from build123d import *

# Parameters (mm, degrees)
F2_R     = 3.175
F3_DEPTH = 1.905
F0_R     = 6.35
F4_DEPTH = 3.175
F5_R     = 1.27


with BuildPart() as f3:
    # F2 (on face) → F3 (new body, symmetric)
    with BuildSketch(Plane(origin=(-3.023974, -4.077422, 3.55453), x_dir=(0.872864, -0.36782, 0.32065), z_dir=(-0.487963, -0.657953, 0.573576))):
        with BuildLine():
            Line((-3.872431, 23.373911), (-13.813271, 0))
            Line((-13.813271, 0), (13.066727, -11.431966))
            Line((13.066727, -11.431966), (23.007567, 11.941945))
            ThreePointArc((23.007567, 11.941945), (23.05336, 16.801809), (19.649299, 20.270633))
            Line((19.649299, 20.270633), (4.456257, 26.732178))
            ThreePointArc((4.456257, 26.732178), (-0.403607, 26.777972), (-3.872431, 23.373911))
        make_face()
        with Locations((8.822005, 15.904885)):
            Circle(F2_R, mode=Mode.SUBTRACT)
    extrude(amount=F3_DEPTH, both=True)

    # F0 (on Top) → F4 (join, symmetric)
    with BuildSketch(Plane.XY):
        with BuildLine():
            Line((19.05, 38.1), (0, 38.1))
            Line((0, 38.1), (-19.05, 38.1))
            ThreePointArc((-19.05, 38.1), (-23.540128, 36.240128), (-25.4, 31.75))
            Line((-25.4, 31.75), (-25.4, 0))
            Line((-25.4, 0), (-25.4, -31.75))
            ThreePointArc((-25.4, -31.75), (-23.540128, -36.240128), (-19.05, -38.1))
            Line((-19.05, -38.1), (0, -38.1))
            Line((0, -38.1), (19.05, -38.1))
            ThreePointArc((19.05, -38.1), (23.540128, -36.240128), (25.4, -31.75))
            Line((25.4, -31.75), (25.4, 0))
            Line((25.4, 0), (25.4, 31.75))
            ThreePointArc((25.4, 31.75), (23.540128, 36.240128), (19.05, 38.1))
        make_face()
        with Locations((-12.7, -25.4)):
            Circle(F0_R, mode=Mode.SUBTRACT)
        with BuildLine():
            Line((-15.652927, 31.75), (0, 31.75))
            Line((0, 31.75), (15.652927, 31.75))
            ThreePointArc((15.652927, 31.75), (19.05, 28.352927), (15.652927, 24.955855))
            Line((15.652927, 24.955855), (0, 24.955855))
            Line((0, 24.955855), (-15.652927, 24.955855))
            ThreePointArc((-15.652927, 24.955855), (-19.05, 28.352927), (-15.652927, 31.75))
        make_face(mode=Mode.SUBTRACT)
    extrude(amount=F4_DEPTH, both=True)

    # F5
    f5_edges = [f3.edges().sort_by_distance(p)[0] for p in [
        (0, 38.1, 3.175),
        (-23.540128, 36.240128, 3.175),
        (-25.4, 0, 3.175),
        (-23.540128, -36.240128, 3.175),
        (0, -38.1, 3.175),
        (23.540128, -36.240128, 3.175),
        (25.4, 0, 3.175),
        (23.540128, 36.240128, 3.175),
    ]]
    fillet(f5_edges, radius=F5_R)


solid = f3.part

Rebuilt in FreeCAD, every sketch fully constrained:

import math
import FreeCAD as App
import Part
import Sketcher

V = App.Vector
Q = App.Units.Quantity


def edges_at(feature, points):
    """Names of the edges that pass closest to the given points."""
    edges = feature.Shape.Edges
    near = lambda p: min(range(len(edges)), key=lambda i: edges[i].distToShape(Part.Vertex(*p))[0])
    return sorted({f"Edge{near(p) + 1}" for p in points})

doc = App.newDocument("Part")
body = doc.addObject("PartDesign::Body", "Body")

sketch1 = body.newObject("Sketcher::SketchObject", "Sketch")
sketch1.Placement = App.Placement(V(-3.023974, -4.077422, 3.55453), App.Rotation(V(0.872864241, -0.367820032, 0.320650028), V(0.000000095, 0.657119505, 0.753786413), V(-0.48796313, -0.657953175, 0.573576153), "ZXY"))
sketch1.addGeometry([
    Part.LineSegment(V(-3.872431, 23.373911, 0), V(-13.813271, 0, 0)),
    Part.LineSegment(V(-13.813271, 0, 0), V(13.066727, -11.431966, 0)),
    Part.LineSegment(V(13.066727, -11.431966, 0), V(23.007567, 11.941945, 0)),
    Part.ArcOfCircle(Part.Circle(V(17.164087, 14.427154, 0), V(0, 0, 1), 6.350002), math.radians(-23.039857), math.radians(66.96011)),
    Part.LineSegment(V(19.649299, 20.270633, 0), V(4.456257, 26.732178, 0)),
    Part.ArcOfCircle(Part.Circle(V(1.971047, 20.8887, 0), V(0, 0, 1), 6.350001), math.radians(66.960125), math.radians(156.960116)),
    Part.Circle(V(8.822005, 15.904885, 0), V(0, 0, 1), 3.175),
], False)
sketch1.addConstraint([
    Sketcher.Constraint("Coincident", 0, 2, 1, 1),
    Sketcher.Constraint("Coincident", 1, 2, 2, 1),
    Sketcher.Constraint("Tangent", 2, 2, 3, 1),
    Sketcher.Constraint("Tangent", 3, 2, 4, 1),
    Sketcher.Constraint("Tangent", 4, 2, 5, 1),
    Sketcher.Constraint("Tangent", 5, 2, 0, 1),
    Sketcher.Constraint("Equal", 3, 5),
    Sketcher.Constraint("PointOnObject", 0, 2, -1),
    Sketcher.Constraint("Perpendicular", 0, 1),
    Sketcher.Constraint("Perpendicular", 1, 2),
    Sketcher.Constraint("Perpendicular", 2, 4),
    Sketcher.Constraint("Diameter", 6, Q("0.25 in")),
    Sketcher.Constraint("Radius", 3, Q("0.2500001 in")),
    Sketcher.Constraint("Distance", 0, Q("1 in")),
    Sketcher.Constraint("Distance", 1, Q("1.15 in")),
    Sketcher.Constraint("DistanceY", -1, 1, 5, 3, 20.8887),
    Sketcher.Constraint("DistanceX", -1, 1, 3, 2, 19.649299),
    Sketcher.Constraint("DistanceX", 6, 3, 3, 3, 8.342082),
    Sketcher.Constraint("DistanceY", 3, 3, 6, 3, 1.477731),
])
pad1 = body.newObject("PartDesign::Pad", "Pad")
pad1.Profile = sketch1
pad1.Length = Q("0.15 in")
pad1.Midplane = True

sketch2 = body.newObject("Sketcher::SketchObject", "Sketch001")
sketch2.AttachmentSupport = (doc.getObject("XY_Plane"), [""])
sketch2.MapMode = "FlatFace"
sketch2.addGeometry([
    Part.LineSegment(V(19.05, 38.1, 0), V(-19.05, 38.1, 0)),
    Part.ArcOfCircle(Part.Circle(V(-19.05, 31.75, 0), V(0, 0, 1), 6.35), math.radians(90.000002), math.radians(179.999998)),
    Part.LineSegment(V(-25.4, 31.75, 0), V(-25.4, -31.75, 0)),
    Part.ArcOfCircle(Part.Circle(V(-19.05, -31.75, 0), V(0, 0, 1), 6.35), math.radians(-179.999998), math.radians(-90.000002)),
    Part.LineSegment(V(-19.05, -38.1, 0), V(19.05, -38.1, 0)),
    Part.ArcOfCircle(Part.Circle(V(19.05, -31.75, 0), V(0, 0, 1), 6.35), math.radians(-89.999998), math.radians(-0.000002)),
    Part.LineSegment(V(25.4, -31.75, 0), V(25.4, 31.75, 0)),
    Part.ArcOfCircle(Part.Circle(V(19.05, 31.75, 0), V(0, 0, 1), 6.35), math.radians(0.000002), math.radians(89.999998)),
    Part.Circle(V(-12.7, -25.4, 0), V(0, 0, 1), 6.35),
    Part.ArcOfCircle(Part.Circle(V(-15.652928, 28.352927, 0), V(0, 0, 1), 3.397073), math.radians(89.999992), math.radians(270.000008)),
    Part.LineSegment(V(-15.652927, 31.75, 0), V(15.652927, 31.75, 0)),
    Part.ArcOfCircle(Part.Circle(V(15.652928, 28.352927, 0), V(0, 0, 1), 3.397073), math.radians(-90.000008), math.radians(90.000008)),
    Part.LineSegment(V(15.652927, 24.955855, 0), V(-15.652927, 24.955855, 0)),
], False)
sketch2.addConstraint([
    Sketcher.Constraint("Tangent", 0, 2, 1, 1),
    Sketcher.Constraint("Tangent", 1, 2, 2, 1),
    Sketcher.Constraint("Tangent", 2, 2, 3, 1),
    Sketcher.Constraint("Tangent", 3, 2, 4, 1),
    Sketcher.Constraint("Tangent", 4, 2, 5, 1),
    Sketcher.Constraint("Tangent", 5, 2, 6, 1),
    Sketcher.Constraint("Tangent", 6, 2, 7, 1),
    Sketcher.Constraint("Tangent", 7, 2, 0, 1),
    Sketcher.Constraint("Tangent", 9, 1, 10, 1),
    Sketcher.Constraint("Tangent", 10, 2, 11, 2),
    Sketcher.Constraint("Tangent", 11, 1, 12, 1),
    Sketcher.Constraint("Tangent", 12, 2, 9, 2),
    Sketcher.Constraint("Horizontal", 0),
    Sketcher.Constraint("Vertical", 2),
    Sketcher.Constraint("Horizontal", 4),
    Sketcher.Constraint("Vertical", 6),
    Sketcher.Constraint("Horizontal", 10),
    Sketcher.Constraint("Horizontal", 12),
    Sketcher.Constraint("Equal", 1, 3),
    Sketcher.Constraint("Equal", 3, 5),
    Sketcher.Constraint("Equal", 5, 7),
    Sketcher.Constraint("Equal", 7, 8),
    Sketcher.Constraint("Symmetric", 1, 3, 5, 3, -1, 1),
    Sketcher.Constraint("Horizontal", 6, 2, 9, 1),
    Sketcher.Constraint("Diameter", 8, Q("0.5 in")),
    Sketcher.Constraint("DistanceX", 0, 2, 0, 1, Q("1.5 in")),
    Sketcher.Constraint("DistanceY", 2, 2, 2, 1, Q("2.5 in")),
    Sketcher.Constraint("DistanceY", 8, 3, -1, 1, Q("1 in")),
    Sketcher.Constraint("DistanceX", 8, 3, -1, 1, Q("0.5 in")),
    Sketcher.Constraint("Radius", 9, 3.397073),
    Sketcher.Constraint("DistanceX", 10, 1, 10, 2, 31.305854),
    Sketcher.Constraint("DistanceX", 9, 3, -1, 1, 15.652928),
])
pad2 = body.newObject("PartDesign::Pad", "Pad001")
pad2.Profile = sketch2
pad2.Length = Q("0.25 in")
pad2.Midplane = True
doc.recompute()

fillet = body.newObject("PartDesign::Fillet", "Fillet")
fillet.Base = (pad2, edges_at(pad2, [
    (0, 38.1, 3.175),
    (-23.54, 36.24, 3.175),
    (-25.4, 0, 3.175),
    (-23.54, -36.24, 3.175),
    (0, -38.1, 3.175),
    (23.54, -36.24, 3.175),
    (25.4, 0, 3.175),
    (23.54, 36.24, 3.175),
]))
fillet.Radius = Q("0.05 in")

doc.recompute()
